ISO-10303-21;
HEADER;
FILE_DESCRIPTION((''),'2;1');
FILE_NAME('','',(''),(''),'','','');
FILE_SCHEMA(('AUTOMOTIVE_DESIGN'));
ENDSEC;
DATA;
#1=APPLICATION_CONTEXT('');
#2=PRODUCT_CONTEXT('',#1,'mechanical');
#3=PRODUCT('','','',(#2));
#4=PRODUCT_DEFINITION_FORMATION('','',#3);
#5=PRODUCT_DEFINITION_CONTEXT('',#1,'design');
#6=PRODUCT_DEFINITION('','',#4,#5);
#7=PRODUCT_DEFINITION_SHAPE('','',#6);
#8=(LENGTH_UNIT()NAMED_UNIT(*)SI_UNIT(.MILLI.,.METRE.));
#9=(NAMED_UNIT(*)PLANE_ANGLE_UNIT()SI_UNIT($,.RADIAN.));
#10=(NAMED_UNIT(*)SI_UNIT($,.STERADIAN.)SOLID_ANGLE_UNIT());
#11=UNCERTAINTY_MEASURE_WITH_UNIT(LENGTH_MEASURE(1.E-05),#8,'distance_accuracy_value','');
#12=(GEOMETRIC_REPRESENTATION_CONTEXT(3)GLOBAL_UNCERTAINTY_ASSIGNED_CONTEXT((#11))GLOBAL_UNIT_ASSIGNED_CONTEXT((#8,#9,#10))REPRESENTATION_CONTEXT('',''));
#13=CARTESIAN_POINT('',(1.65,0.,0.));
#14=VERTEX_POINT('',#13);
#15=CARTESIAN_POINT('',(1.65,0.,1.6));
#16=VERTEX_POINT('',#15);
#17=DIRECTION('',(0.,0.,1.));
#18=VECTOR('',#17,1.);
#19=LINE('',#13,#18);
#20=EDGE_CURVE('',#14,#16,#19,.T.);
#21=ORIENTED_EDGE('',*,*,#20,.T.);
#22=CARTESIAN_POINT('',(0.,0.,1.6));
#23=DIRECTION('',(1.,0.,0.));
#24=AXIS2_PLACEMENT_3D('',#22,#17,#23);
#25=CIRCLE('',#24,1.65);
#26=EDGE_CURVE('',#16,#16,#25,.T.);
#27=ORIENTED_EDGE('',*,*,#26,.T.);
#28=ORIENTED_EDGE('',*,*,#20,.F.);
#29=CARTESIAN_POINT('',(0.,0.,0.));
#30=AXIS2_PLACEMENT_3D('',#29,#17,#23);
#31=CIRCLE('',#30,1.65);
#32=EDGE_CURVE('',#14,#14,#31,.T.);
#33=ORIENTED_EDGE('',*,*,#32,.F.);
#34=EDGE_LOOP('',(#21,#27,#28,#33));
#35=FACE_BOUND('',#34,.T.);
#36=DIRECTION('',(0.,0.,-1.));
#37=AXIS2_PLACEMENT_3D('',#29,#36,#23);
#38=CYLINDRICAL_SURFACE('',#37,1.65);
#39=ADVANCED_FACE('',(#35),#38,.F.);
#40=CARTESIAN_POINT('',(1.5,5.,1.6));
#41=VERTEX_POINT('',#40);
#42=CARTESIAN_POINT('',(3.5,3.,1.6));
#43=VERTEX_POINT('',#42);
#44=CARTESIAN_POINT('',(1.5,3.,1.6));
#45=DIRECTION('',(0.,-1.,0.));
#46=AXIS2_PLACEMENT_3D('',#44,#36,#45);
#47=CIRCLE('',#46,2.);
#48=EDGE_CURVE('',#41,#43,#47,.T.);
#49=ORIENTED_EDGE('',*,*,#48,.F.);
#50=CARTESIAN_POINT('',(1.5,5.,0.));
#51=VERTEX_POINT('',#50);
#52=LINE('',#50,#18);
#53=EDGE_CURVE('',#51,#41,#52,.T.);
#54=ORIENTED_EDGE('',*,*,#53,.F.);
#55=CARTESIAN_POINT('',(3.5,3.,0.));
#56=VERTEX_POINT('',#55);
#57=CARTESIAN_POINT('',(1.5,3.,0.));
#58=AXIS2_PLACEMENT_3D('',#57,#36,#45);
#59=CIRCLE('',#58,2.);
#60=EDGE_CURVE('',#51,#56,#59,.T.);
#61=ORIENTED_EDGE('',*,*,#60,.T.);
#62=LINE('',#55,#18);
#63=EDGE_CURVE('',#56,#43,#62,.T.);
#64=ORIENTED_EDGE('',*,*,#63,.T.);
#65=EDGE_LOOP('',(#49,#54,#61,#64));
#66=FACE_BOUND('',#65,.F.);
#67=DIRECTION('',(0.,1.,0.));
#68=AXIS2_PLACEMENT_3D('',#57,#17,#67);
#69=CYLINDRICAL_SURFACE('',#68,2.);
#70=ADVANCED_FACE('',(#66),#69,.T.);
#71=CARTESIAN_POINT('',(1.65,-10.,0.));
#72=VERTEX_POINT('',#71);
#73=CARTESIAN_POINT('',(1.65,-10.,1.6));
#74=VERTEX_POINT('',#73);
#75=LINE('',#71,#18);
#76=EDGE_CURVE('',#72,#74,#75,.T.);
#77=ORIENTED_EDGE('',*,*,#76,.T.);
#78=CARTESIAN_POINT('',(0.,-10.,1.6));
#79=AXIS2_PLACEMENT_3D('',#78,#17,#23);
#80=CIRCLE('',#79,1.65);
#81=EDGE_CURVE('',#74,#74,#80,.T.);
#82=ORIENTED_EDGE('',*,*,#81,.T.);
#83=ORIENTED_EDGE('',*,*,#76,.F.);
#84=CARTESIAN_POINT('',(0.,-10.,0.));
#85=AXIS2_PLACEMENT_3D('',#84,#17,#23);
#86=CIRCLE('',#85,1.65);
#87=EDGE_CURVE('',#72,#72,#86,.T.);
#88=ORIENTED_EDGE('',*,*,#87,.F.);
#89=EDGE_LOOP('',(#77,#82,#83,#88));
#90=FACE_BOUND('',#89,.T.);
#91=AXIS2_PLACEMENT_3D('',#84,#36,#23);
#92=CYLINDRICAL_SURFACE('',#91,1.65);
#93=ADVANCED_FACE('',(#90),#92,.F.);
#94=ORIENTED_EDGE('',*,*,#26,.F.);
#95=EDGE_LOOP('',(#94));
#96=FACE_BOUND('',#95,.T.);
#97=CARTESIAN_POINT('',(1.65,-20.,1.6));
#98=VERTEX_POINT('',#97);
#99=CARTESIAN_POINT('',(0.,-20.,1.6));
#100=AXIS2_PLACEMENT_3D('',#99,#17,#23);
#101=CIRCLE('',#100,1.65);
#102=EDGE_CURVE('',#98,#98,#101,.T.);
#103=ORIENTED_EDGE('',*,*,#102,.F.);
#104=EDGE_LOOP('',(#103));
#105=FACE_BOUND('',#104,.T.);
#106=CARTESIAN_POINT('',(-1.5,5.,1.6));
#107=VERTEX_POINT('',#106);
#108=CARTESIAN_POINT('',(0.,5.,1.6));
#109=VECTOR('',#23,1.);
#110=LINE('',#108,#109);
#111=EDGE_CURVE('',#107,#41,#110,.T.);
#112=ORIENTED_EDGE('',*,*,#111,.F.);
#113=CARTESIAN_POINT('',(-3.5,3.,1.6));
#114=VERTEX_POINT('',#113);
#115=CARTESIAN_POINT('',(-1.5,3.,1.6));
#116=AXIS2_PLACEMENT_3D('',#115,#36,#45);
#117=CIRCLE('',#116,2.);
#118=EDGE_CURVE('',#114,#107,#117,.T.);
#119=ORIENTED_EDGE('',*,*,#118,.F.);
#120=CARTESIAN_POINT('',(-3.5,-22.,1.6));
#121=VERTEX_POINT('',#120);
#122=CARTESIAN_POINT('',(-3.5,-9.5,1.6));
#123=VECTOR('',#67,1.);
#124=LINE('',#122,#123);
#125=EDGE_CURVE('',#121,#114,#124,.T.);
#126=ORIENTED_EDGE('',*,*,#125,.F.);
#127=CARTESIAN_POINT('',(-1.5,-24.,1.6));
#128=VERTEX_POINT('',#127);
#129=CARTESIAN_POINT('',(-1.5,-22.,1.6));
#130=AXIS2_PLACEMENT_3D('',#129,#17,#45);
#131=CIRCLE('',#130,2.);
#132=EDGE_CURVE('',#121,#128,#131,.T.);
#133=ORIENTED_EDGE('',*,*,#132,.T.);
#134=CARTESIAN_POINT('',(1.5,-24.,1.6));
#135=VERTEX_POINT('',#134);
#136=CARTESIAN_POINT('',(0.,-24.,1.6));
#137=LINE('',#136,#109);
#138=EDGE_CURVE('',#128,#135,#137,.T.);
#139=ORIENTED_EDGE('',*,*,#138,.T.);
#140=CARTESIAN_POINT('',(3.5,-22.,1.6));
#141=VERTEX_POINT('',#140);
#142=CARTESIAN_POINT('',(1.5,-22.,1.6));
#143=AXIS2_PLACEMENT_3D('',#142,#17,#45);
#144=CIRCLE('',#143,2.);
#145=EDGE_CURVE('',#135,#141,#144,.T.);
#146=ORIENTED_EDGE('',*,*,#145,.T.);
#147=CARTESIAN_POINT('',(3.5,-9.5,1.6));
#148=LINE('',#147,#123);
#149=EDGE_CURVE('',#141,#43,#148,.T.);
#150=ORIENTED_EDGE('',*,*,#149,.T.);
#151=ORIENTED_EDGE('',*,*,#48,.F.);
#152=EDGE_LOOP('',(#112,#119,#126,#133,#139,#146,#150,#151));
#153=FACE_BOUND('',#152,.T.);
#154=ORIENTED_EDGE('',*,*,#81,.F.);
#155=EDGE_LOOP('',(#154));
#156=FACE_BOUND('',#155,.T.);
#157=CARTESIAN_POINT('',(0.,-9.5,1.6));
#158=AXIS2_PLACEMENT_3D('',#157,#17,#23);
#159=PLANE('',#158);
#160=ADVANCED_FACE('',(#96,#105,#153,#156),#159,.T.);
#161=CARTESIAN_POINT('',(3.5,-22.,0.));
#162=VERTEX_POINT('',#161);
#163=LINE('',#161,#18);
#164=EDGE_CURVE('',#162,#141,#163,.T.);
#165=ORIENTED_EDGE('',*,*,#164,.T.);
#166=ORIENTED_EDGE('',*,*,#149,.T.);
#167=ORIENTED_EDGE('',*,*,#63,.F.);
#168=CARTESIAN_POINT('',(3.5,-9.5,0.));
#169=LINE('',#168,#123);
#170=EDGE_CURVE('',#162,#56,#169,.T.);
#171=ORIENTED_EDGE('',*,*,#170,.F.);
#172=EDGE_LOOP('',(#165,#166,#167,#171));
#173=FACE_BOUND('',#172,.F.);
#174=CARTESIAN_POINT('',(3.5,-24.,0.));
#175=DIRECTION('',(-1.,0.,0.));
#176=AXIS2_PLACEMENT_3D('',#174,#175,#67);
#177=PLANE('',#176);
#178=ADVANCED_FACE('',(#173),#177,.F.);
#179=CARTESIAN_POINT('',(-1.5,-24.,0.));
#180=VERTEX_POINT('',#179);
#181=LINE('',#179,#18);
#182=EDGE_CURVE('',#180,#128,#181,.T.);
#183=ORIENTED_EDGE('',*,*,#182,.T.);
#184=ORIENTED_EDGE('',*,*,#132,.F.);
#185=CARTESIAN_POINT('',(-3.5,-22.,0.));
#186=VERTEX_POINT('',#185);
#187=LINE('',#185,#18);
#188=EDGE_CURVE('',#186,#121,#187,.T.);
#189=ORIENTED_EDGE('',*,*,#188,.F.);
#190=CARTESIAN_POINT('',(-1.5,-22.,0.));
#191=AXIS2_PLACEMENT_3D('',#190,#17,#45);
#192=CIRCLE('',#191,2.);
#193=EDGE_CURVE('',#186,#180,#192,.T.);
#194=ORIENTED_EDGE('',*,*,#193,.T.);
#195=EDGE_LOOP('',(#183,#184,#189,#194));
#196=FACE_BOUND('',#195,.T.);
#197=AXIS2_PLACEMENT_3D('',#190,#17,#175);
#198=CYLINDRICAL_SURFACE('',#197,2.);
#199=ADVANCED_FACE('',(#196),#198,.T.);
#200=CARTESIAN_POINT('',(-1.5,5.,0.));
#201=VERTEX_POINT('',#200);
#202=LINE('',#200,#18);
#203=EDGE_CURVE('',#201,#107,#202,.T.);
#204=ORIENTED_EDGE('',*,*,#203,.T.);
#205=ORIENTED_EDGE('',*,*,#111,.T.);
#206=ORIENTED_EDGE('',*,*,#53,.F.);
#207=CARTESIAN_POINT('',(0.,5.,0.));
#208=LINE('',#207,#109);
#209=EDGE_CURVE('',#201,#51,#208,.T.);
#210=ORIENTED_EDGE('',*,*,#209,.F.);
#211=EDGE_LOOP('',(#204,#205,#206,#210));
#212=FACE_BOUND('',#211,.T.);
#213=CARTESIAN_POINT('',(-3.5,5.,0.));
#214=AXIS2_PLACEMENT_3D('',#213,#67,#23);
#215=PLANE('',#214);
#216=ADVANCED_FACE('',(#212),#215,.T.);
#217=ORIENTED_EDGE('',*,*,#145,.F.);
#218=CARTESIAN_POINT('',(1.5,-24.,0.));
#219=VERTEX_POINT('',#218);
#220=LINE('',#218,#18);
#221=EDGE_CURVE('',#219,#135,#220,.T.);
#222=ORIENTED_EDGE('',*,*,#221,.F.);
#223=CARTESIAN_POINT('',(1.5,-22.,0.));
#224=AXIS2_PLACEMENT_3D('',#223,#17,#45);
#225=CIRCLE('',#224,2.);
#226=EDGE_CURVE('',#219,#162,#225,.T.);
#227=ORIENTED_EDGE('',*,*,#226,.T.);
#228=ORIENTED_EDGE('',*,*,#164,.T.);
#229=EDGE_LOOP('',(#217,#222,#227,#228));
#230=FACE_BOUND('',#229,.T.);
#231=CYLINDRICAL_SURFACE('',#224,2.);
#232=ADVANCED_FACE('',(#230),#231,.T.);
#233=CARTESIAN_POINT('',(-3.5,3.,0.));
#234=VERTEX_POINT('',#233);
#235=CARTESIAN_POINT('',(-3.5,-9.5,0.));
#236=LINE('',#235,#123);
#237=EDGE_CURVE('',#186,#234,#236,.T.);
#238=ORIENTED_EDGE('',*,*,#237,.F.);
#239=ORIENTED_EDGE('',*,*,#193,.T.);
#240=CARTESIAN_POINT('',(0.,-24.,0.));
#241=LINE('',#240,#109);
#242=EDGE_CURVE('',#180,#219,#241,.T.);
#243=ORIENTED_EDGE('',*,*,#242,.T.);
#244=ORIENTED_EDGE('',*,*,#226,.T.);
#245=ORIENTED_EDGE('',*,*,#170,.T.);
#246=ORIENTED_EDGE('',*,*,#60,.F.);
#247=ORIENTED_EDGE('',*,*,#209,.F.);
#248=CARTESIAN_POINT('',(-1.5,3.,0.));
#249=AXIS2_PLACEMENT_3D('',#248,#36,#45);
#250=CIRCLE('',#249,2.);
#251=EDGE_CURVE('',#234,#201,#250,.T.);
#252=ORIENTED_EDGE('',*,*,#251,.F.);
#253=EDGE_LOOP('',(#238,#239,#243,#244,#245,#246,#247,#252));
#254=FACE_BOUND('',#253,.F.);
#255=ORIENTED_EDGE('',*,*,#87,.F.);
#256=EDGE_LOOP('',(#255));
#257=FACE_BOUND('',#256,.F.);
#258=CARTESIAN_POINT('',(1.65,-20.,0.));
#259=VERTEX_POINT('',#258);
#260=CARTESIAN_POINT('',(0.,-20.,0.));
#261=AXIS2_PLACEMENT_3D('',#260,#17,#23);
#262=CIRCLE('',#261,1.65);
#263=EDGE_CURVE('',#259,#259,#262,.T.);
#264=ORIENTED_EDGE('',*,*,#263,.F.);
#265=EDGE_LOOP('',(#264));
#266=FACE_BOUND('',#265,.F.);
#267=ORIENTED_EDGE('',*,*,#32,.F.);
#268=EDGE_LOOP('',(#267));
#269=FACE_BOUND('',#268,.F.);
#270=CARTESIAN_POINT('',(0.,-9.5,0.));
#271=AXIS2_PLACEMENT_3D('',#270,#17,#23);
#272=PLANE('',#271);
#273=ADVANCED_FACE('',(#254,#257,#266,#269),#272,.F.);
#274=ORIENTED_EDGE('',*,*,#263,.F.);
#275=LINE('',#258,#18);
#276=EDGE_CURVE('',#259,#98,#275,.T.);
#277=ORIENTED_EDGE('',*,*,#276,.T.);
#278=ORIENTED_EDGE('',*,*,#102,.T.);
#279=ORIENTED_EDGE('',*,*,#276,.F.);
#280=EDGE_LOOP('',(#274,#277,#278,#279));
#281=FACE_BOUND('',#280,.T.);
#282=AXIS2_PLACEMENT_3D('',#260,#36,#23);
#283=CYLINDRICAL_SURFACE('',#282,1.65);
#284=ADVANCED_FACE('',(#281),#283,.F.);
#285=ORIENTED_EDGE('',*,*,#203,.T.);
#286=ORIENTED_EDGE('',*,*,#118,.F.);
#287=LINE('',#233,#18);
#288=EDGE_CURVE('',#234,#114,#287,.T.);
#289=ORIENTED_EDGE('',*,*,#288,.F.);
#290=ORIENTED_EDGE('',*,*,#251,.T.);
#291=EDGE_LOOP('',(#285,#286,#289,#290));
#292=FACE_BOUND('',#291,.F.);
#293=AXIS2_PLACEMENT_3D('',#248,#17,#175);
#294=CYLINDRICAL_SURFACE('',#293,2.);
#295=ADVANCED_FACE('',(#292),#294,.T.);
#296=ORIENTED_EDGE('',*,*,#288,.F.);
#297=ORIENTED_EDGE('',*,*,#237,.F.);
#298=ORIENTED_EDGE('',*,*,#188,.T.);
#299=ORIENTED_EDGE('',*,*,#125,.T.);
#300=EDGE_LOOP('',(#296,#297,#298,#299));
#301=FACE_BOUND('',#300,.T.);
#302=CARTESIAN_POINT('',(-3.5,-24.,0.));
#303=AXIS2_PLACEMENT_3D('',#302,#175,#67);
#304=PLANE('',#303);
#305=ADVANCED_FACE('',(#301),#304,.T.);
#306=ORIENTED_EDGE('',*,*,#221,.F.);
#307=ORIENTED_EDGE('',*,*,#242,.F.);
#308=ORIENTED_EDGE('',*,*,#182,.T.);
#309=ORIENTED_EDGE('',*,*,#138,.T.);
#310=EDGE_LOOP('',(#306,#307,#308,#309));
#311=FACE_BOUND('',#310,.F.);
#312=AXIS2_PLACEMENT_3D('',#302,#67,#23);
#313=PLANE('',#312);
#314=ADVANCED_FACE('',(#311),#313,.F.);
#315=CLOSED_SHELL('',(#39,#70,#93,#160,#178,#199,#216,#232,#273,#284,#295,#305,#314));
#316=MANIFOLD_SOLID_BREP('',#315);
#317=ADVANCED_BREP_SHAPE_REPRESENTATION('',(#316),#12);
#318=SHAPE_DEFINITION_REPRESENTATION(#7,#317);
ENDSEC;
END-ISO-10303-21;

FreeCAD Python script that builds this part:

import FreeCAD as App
import Part
import Sketcher
from FreeCAD import Vector


def edges_at(feature, points):
    """Names of the edges that pass closest to the given points."""
    edges = feature.Shape.Edges
    near = lambda p: min(range(len(edges)), key=lambda i: edges[i].distToShape(Part.Vertex(*p))[0])
    return sorted({f"Edge{near(p) + 1}" for p in points})


def add_polygon(sketch, points):
    """Adds a closed chain of lines whose ends are joined by coincident constraints."""
    first, n = sketch.GeometryCount, len(points)
    for a, b in zip(points, points[1:] + points[:1]):
        sketch.addGeometry(Part.LineSegment(App.Vector(*a, 0), App.Vector(*b, 0)), False)
    for i in range(n):
        sketch.addConstraint(Sketcher.Constraint("Coincident", first + i, 2, first + (i + 1) % n, 1))

doc = App.newDocument("Part")
body = doc.addObject("PartDesign::Body", "Body")

sketch1 = body.newObject("Sketcher::SketchObject", "Sketch")
sketch1.AttachmentSupport = (doc.getObject("XY_Plane"), [""])
sketch1.MapMode = "FlatFace"
add_polygon(sketch1, [(-3.5, 5), (-3.5, -24), (3.5, -24), (3.5, 5)])
sketch1.addGeometry(Part.Circle(Vector(0, -20, 0), Vector(0, 0, 1), 1.65), False)
sketch1.addGeometry(Part.Circle(Vector(0, -10, 0), Vector(0, 0, 1), 1.65), False)
sketch1.addGeometry(Part.Circle(Vector(0, 0, 0), Vector(0, 0, 1), 1.65), False)
sketch1.addConstraint([
    Sketcher.Constraint("Vertical", 0),
    Sketcher.Constraint("Horizontal", 1),
    Sketcher.Constraint("Vertical", 2),
    Sketcher.Constraint("Horizontal", 3),
    Sketcher.Constraint("Coincident", 6, 3, -1, 1),
    Sketcher.Constraint("Equal", 4, 5),
    Sketcher.Constraint("Equal", 5, 6),
    Sketcher.Constraint("PointOnObject", 4, 3, -2),
    Sketcher.Constraint("PointOnObject", 5, 3, -2),
    Sketcher.Constraint("Diameter", 4, 3.3),
    Sketcher.Constraint("DistanceX", 1, 1, 1, 2, 7.0),
    Sketcher.Constraint("DistanceY", 0, 2, 0, 1, 29.0),
    Sketcher.Constraint("DistanceY", 4, 3, -1, 1, 20.0),
    Sketcher.Constraint("DistanceY", 5, 3, -1, 1, 10.0),
    Sketcher.Constraint("DistanceY", 0, 2, -1, 1, 24.0),
    Sketcher.Constraint("DistanceX", 0, 2, -1, 1, 3.5),
])
pad1 = body.newObject("PartDesign::Pad", "Pad")
pad1.Profile = sketch1
pad1.Length = 1.6
doc.recompute()

fillet = body.newObject("PartDesign::Fillet", "Fillet")
fillet.Base = (pad1, edges_at(pad1, [
    (3.5, 5, 0.8),
    (3.5, -24, 0.8),
    (-3.5, -24, 0.8),
    (-3.5, 5, 0.8),
]))
fillet.Radius = 2

doc.recompute()
